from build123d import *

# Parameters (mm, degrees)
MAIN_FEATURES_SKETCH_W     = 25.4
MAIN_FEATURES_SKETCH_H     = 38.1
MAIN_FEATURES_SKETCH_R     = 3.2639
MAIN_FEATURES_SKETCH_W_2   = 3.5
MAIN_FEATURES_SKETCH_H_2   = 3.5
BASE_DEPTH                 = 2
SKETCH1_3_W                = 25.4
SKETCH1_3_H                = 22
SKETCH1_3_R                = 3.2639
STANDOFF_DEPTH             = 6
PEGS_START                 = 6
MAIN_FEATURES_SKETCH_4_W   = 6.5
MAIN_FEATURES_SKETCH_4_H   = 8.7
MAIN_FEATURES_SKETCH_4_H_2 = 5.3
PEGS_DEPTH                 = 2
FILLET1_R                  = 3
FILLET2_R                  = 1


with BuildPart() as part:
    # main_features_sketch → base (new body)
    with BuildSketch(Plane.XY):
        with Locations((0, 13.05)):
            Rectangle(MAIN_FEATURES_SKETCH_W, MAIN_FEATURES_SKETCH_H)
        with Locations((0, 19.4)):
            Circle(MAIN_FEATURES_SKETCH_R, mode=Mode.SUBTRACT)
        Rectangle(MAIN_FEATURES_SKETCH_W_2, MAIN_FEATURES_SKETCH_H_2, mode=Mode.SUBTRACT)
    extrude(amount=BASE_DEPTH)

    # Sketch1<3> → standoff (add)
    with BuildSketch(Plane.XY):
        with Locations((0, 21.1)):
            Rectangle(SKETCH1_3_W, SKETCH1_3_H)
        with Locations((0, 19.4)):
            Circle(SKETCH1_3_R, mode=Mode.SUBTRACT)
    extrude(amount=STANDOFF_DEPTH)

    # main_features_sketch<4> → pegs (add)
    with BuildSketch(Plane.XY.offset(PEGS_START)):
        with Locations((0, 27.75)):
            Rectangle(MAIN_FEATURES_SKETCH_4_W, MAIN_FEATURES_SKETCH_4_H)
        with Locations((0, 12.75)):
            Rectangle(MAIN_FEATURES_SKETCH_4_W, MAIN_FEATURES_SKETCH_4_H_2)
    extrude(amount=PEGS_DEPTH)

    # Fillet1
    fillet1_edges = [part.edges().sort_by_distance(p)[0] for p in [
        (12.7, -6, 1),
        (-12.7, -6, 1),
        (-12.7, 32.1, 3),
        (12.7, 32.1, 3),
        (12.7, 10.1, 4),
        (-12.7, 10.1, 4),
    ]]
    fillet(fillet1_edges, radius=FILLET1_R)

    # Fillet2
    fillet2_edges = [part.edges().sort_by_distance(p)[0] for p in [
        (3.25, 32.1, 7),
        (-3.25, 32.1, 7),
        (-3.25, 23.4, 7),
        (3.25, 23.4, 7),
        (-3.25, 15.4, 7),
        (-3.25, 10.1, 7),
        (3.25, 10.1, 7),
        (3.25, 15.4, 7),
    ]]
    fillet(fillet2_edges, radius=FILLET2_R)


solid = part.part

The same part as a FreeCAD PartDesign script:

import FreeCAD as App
import Part
import Sketcher
from FreeCAD import Vector


def edges_at(feature, points):
    """Names of the edges that pass closest to the given points."""
    edges = feature.Shape.Edges
    near = lambda p: min(range(len(edges)), key=lambda i: edges[i].distToShape(Part.Vertex(*p))[0])
    return sorted({f"Edge{near(p) + 1}" for p in points})

doc = App.newDocument("Part")
body = doc.addObject("PartDesign::Body", "Body")

sketch1 = body.newObject("Sketcher::SketchObject", "Sketch")
sketch1.AttachmentSupport = (doc.getObject("XY_Plane"), [""])
sketch1.MapMode = "FlatFace"
sketch1.addGeometry([
    Part.LineSegment(Vector(-12.7, 32.1, 0), Vector(-12.7, -6, 0)),
    Part.LineSegment(Vector(-12.7, -6, 0), Vector(12.7, -6, 0)),
    Part.LineSegment(Vector(12.7, -6, 0), Vector(12.7, 32.1, 0)),
    Part.LineSegment(Vector(12.7, 32.1, 0), Vector(-12.7, 32.1, 0)),
    Part.LineSegment(Vector(1.8, -1.8, 0), Vector(-1.8, -1.8, 0)),
    Part.LineSegment(Vector(-1.8, -1.8, 0), Vector(-1.8, 1.8, 0)),
    Part.LineSegment(Vector(-1.8, 1.8, 0), Vector(1.8, 1.8, 0)),
    Part.LineSegment(Vector(1.8, 1.8, 0), Vector(1.8, -1.8, 0)),
    Part.Circle(Vector(0, 19.4, 0), Vector(0, 0, 1), 3.3),
], False)
sketch1.addConstraint([
    Sketcher.Constraint("Coincident", 0, 2, 1, 1),
    Sketcher.Constraint("Coincident", 1, 2, 2, 1),
    Sketcher.Constraint("Coincident", 2, 2, 3, 1),
    Sketcher.Constraint("Coincident", 3, 2, 0, 1),
    Sketcher.Constraint("Coincident", 4, 2, 5, 1),
    Sketcher.Constraint("Coincident", 5, 2, 6, 1),
    Sketcher.Constraint("Coincident", 6, 2, 7, 1),
    Sketcher.Constraint("Coincident", 7, 2, 4, 1),
    Sketcher.Constraint("Vertical", 0),
    Sketcher.Constraint("Horizontal", 1),
    Sketcher.Constraint("Vertical", 2),
    Sketcher.Constraint("Horizontal", 3),
    Sketcher.Constraint("Horizontal", 4),
    Sketcher.Constraint("Vertical", 5),
    Sketcher.Constraint("Horizontal", 6),
    Sketcher.Constraint("Vertical", 7),
    Sketcher.Constraint("Symmetric", 4, 2, 6, 2, -1, 1),
    Sketcher.Constraint("PointOnObject", 8, 3, -2),
    Sketcher.Constraint("Equal", 6, 5),
    Sketcher.Constraint("DistanceX", 1, 1, 1, 2, 25.4),
    Sketcher.Constraint("DistanceX", 4, 2, 4, 1, 3.5),
    Sketcher.Constraint("DistanceY", 0, 2, 0, 1, 38.1),
    Sketcher.Constraint("DistanceY", 0, 2, -1, 1, 6.0),
    Sketcher.Constraint("Diameter", 8, 6.5278),
    Sketcher.Constraint("DistanceY", -1, 1, 8, 3, 19.4),
    Sketcher.Constraint("DistanceX", 0, 2, -1, 1, 12.7),
])
pad1 = body.newObject("PartDesign::Pad", "Pad")
pad1.Profile = sketch1
pad1.Length = 2

sketch2 = body.newObject("Sketcher::SketchObject", "Sketch001")
sketch2.AttachmentSupport = (doc.getObject("XY_Plane"), [""])
sketch2.MapMode = "FlatFace"
sketch2.addGeometry([
    Part.LineSegment(Vector(-12.7, 32.1, 0), Vector(-12.7, 10.1, 0)),
    Part.LineSegment(Vector(-12.7, 10.1, 0), Vector(12.7, 10.1, 0)),
    Part.LineSegment(Vector(12.7, 10.1, 0), Vector(12.7, 32.1, 0)),
    Part.LineSegment(Vector(12.7, 32.1, 0), Vector(-12.7, 32.1, 0)),
    Part.Circle(Vector(0, 19.4, 0), Vector(0, 0, 1), 3.3),
], False)
sketch2.addConstraint([
    Sketcher.Constraint("Coincident", 0, 2, 1, 1),
    Sketcher.Constraint("Coincident", 1, 2, 2, 1),
    Sketcher.Constraint("Coincident", 2, 2, 3, 1),
    Sketcher.Constraint("Coincident", 3, 2, 0, 1),
    Sketcher.Constraint("Vertical", 0),
    Sketcher.Constraint("Horizontal", 1),
    Sketcher.Constraint("Vertical", 2),
    Sketcher.Constraint("Horizontal", 3),
    Sketcher.Constraint("PointOnObject", 4, 3, -2),
    Sketcher.Constraint("DistanceY", 0, 2, 0, 1, 22.0),
    Sketcher.Constraint("DistanceX", 1, 1, 1, 2, 25.4),
    Sketcher.Constraint("Diameter", 4, 6.5278),
    Sketcher.Constraint("DistanceY", -1, 1, 4, 3, 19.4),
    Sketcher.Constraint("DistanceX", 0, 2, -1, 1, 12.7),
    Sketcher.Constraint("DistanceY", -1, 1, 0, 2, 10.1),
])
pad2 = body.newObject("PartDesign::Pad", "Pad001")
pad2.Profile = sketch2
pad2.Length = 6

sketch3 = body.newObject("Sketcher::SketchObject", "Sketch002")
sketch3.AttachmentSupport = (doc.getObject("XY_Plane"), [""])
sketch3.MapMode = "FlatFace"
sketch3.AttachmentOffset = App.Placement(Vector(0, 0, 6), App.Rotation())
sketch3.addGeometry([
    Part.LineSegment(Vector(-3, 32, 0), Vector(-3, 23, 0)),
    Part.LineSegment(Vector(-3, 23, 0), Vector(3, 23, 0)),
    Part.LineSegment(Vector(3, 23, 0), Vector(3, 32, 0)),
    Part.LineSegment(Vector(3, 32, 0), Vector(-3, 32, 0)),
    Part.LineSegment(Vector(-3, 15, 0), Vector(-3, 10, 0)),
    Part.LineSegment(Vector(-3, 10, 0), Vector(3, 10, 0)),
    Part.LineSegment(Vector(3, 10, 0), Vector(3, 15, 0)),
    Part.LineSegment(Vector(3, 15, 0), Vector(-3, 15, 0)),
], False)
sketch3.addConstraint([
    Sketcher.Constraint("Coincident", 0, 2, 1, 1),
    Sketcher.Constraint("Coincident", 1, 2, 2, 1),
    Sketcher.Constraint("Coincident", 2, 2, 3, 1),
    Sketcher.Constraint("Coincident", 3, 2, 0, 1),
    Sketcher.Constraint("Coincident", 4, 2, 5, 1),
    Sketcher.Constraint("Coincident", 5, 2, 6, 1),
    Sketcher.Constraint("Coincident", 6, 2, 7, 1),
    Sketcher.Constraint("Coincident", 7, 2, 4, 1),
    Sketcher.Constraint("Vertical", 0),
    Sketcher.Constraint("Horizontal", 1),
    Sketcher.Constraint("Vertical", 2),
    Sketcher.Constraint("Horizontal", 3),
    Sketcher.Constraint("Vertical", 4),
    Sketcher.Constraint("Horizontal", 5),
    Sketcher.Constraint("Vertical", 6),
    Sketcher.Constraint("Horizontal", 7),
    Sketcher.Constraint("Vertical", 3, 2, 4, 2),
    Sketcher.Constraint("Vertical", 2, 2, 5, 2),
    Sketcher.Constraint("DistanceX", 1, 1, 1, 2, 6.5),
    Sketcher.Constraint("DistanceY", 0, 2, 0, 1, 8.7),
    Sketcher.Constraint("DistanceY", 4, 2, 4, 1, 5.3),
    Sketcher.Constraint("DistanceY", 4, 2, 3, 2, 22.0),
    Sketcher.Constraint("DistanceY", -1, 1, 0, 2, 23.4),
    Sketcher.Constraint("DistanceX", 0, 2, -1, 1, 3.25),
])
pad3 = body.newObject("PartDesign::Pad", "Pad002")
pad3.Profile = sketch3
pad3.Length = 2
doc.recompute()

fillet = body.newObject("PartDesign::Fillet", "Fillet")
fillet.Base = (pad3, edges_at(pad3, [
    (12.7, -6, 1),
    (-12.7, -6, 1),
    (-12.7, 32.1, 3),
    (12.7, 32.1, 3),
    (12.7, 10.1, 4),
    (-12.7, 10.1, 4),
]))
fillet.Radius = 3
doc.recompute()

fillet2 = body.newObject("PartDesign::Fillet", "Fillet001")
fillet2.Base = (fillet, edges_at(fillet, [
    (3.25, 32.1, 7),
    (-3.25, 32.1, 7),
    (-3.25, 23.4, 7),
    (3.25, 23.4, 7),
    (-3.25, 15.4, 7),
    (-3.25, 10.1, 7),
    (3.25, 10.1, 7),
    (3.25, 15.4, 7),
]))
fillet2.Radius = 1

doc.recompute()
